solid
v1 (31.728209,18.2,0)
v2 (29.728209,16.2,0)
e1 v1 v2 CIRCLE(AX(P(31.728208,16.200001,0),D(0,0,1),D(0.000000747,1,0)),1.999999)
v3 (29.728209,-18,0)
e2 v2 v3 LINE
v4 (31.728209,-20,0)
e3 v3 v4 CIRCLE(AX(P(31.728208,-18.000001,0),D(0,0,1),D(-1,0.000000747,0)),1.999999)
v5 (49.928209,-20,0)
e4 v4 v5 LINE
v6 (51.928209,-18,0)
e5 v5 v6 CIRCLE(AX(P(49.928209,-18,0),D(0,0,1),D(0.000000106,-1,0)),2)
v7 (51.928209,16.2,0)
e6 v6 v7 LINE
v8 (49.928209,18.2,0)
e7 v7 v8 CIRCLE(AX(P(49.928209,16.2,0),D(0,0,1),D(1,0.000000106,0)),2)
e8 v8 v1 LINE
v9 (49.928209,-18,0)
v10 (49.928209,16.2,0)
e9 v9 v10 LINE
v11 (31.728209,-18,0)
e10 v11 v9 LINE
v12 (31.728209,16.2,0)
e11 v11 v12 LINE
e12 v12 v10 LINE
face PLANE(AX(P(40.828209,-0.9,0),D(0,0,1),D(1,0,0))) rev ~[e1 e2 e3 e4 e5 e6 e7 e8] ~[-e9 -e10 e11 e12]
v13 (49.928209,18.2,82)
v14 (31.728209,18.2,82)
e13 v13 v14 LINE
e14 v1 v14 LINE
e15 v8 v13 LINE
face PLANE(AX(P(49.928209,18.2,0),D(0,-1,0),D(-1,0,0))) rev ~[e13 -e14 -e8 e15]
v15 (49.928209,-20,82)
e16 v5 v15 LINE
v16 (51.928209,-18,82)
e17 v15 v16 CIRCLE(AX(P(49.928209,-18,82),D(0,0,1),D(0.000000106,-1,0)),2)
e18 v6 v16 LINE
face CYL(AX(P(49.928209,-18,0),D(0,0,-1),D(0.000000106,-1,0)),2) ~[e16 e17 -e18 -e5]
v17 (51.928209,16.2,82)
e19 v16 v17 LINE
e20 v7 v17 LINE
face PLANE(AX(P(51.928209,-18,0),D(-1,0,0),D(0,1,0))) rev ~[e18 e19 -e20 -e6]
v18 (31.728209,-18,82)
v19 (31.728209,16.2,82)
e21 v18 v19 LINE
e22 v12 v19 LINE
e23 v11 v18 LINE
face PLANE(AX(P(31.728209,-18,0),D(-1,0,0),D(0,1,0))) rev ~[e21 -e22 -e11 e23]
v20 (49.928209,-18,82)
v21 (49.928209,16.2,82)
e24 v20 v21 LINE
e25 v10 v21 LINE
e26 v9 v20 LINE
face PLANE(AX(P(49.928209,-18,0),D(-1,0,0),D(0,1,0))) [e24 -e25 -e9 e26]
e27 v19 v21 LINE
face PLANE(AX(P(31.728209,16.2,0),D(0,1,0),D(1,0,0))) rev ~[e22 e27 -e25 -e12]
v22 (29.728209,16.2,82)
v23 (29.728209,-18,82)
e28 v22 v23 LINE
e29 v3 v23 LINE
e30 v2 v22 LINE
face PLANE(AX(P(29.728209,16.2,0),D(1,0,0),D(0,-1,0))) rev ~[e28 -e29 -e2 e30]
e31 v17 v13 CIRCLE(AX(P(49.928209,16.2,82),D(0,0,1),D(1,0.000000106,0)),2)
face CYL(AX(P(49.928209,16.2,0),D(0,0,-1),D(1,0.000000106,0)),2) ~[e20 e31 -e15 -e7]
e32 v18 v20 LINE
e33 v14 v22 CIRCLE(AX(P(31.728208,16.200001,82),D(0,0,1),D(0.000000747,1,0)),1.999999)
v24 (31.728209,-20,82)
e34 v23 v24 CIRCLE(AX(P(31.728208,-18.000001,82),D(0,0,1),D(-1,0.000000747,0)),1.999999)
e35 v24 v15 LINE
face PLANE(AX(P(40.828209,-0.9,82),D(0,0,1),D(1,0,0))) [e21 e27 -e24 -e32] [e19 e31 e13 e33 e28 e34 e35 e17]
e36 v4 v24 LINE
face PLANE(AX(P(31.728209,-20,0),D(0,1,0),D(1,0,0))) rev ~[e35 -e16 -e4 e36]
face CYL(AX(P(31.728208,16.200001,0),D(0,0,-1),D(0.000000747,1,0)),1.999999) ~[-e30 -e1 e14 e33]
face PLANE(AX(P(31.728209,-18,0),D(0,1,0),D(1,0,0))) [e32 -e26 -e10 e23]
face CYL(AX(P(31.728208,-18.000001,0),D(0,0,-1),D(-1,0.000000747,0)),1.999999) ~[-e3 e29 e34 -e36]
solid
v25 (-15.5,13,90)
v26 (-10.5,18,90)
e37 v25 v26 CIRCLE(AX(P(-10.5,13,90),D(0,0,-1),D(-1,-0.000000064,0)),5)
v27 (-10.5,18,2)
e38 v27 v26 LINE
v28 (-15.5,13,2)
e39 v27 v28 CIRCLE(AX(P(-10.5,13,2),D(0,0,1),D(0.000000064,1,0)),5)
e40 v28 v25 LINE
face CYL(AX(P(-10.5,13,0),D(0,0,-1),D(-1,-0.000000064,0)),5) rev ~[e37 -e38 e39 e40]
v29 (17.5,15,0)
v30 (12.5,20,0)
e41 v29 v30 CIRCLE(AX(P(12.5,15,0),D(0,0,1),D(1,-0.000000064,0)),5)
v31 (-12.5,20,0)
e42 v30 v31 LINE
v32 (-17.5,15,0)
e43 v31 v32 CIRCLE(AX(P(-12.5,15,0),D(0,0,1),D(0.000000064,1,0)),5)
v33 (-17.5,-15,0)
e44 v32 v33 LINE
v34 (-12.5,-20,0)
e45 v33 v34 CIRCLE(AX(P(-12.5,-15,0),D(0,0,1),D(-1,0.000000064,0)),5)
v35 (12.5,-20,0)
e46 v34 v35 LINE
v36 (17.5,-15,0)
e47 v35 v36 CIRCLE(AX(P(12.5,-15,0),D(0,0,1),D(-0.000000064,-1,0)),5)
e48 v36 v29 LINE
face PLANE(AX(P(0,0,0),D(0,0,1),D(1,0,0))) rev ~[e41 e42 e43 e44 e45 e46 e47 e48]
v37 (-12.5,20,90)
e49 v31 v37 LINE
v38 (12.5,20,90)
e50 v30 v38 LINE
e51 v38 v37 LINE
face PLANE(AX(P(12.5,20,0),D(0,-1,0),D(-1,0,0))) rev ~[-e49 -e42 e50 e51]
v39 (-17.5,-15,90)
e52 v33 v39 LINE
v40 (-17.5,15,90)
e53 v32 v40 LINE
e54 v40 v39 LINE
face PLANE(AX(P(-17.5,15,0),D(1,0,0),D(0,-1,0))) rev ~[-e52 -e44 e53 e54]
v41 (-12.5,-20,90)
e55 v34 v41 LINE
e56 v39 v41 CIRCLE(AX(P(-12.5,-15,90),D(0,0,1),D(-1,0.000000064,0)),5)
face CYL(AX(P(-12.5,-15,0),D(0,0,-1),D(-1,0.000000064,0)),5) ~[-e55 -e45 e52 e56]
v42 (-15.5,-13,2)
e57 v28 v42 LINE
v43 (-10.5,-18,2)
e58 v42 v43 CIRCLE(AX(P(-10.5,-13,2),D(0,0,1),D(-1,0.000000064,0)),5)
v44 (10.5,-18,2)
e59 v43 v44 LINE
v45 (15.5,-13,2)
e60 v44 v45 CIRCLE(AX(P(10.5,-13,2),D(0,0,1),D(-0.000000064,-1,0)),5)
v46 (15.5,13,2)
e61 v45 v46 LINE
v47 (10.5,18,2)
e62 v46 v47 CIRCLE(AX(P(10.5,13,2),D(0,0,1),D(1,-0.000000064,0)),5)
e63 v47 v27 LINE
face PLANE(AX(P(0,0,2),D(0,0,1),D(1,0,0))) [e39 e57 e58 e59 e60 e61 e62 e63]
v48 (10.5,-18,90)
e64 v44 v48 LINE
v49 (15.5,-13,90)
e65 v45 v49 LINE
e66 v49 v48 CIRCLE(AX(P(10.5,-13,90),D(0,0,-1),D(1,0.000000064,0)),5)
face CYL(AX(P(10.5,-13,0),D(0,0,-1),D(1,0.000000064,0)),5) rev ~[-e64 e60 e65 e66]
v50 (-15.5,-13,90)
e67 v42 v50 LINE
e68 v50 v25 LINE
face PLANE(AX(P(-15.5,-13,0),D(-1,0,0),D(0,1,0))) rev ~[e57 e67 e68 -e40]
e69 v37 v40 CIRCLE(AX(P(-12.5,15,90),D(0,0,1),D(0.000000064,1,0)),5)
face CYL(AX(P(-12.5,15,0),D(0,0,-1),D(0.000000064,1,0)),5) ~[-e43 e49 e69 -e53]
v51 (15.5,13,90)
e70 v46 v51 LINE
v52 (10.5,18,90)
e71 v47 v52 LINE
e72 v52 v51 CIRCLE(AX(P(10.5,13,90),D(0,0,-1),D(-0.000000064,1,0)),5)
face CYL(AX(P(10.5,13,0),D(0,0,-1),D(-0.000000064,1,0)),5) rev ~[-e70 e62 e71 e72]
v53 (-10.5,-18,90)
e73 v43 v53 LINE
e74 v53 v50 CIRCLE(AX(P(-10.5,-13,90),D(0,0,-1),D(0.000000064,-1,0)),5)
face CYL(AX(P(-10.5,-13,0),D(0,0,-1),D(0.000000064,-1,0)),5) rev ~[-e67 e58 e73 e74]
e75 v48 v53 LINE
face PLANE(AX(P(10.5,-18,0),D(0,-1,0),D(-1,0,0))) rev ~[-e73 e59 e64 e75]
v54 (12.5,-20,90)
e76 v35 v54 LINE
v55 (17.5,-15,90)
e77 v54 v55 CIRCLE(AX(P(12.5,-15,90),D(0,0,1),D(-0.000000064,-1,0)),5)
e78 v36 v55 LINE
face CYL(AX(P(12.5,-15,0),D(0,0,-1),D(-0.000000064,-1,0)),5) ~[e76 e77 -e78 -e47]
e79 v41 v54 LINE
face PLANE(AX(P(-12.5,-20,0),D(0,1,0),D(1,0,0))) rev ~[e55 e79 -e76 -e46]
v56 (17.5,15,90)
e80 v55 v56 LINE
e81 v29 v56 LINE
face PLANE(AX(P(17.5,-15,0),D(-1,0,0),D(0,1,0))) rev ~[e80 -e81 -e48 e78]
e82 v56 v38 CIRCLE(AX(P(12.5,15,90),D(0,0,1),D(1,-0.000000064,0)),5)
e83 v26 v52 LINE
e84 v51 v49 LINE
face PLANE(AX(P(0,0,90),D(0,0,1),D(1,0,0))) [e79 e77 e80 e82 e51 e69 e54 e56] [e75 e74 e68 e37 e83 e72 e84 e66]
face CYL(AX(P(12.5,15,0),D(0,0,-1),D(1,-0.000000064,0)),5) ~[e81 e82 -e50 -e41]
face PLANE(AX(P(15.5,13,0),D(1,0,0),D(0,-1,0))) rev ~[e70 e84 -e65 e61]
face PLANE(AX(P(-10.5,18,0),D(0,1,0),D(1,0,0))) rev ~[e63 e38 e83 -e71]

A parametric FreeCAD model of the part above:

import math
import FreeCAD as App
import Part
import Sketcher

doc = App.newDocument("Part")
params = doc.addObject("Spreadsheet::Sheet", "Params")
for row, (alias, value) in enumerate([
    ("sketch1_radius", "5 mm"),
    ("sketch1_width", "25 mm"),
    ("sketch1_width2", "21 mm"),
    ("sketch1_height", "30 mm"),
    ("sketch1_height2", "26 mm"),
    ("pad1_length", "90 mm"),
    ("sketch2_radius", "5 mm"),
    ("sketch2_width", "21 mm"),
    ("sketch2_height", "26 mm"),
    ("pad2_length", "2 mm"),
    ("sketch3_radius", "1.999999 mm"),
    ("sketch3_width", "18.2 mm"),
    ("sketch3_height", "34.2 mm"),
    ("pad3_length", "82 mm"),
], start=1):
    params.set(f"A{row}", alias)
    params.set(f"B{row}", "=" + value)
    params.setAlias(f"B{row}", alias)

body = doc.addObject("PartDesign::Body", "Body")

# Sketch on XY plane
sketch1 = body.newObject("Sketcher::SketchObject", "Sketch")
sketch1.AttachmentSupport = (doc.getObject("XY_Plane"), [""])
sketch1.MapMode = "FlatFace"
sketch1.addGeometry(Part.ArcOfCircle(Part.Circle(App.Vector(12.5, 15, 0), App.Vector(0, 0, 1), 5), math.radians(0), math.radians(90)), False)
sketch1.addGeometry(Part.LineSegment(App.Vector(12.5, 20, 0), App.Vector(-12.5, 20, 0)), False)
sketch1.addGeometry(Part.ArcOfCircle(Part.Circle(App.Vector(-12.5, 15, 0), App.Vector(0, 0, 1), 5), math.radians(90), math.radians(180)), False)
sketch1.addGeometry(Part.LineSegment(App.Vector(-17.5, 15, 0), App.Vector(-17.5, -15, 0)), False)
sketch1.addGeometry(Part.ArcOfCircle(Part.Circle(App.Vector(-12.5, -15, 0), App.Vector(0, 0, 1), 5), math.radians(180), math.radians(270)), False)
sketch1.addGeometry(Part.LineSegment(App.Vector(-12.5, -20, 0), App.Vector(12.5, -20, 0)), False)
sketch1.addGeometry(Part.ArcOfCircle(Part.Circle(App.Vector(12.5, -15, 0), App.Vector(0, 0, 1), 5), math.radians(-90), math.radians(0)), False)
sketch1.addGeometry(Part.LineSegment(App.Vector(17.5, -15, 0), App.Vector(17.5, 15, 0)), False)
sketch1.addGeometry(Part.ArcOfCircle(Part.Circle(App.Vector(-10.5, -13, 0), App.Vector(0, 0, 1), 5), math.radians(180), math.radians(270)), False)
sketch1.addGeometry(Part.LineSegment(App.Vector(-15.5, -13, 0), App.Vector(-15.5, 13, 0)), False)
sketch1.addGeometry(Part.ArcOfCircle(Part.Circle(App.Vector(-10.5, 13, 0), App.Vector(0, 0, 1), 5), math.radians(90), math.radians(180)), False)
sketch1.addGeometry(Part.LineSegment(App.Vector(-10.5, 18, 0), App.Vector(10.5, 18, 0)), False)
sketch1.addGeometry(Part.ArcOfCircle(Part.Circle(App.Vector(10.5, 13, 0), App.Vector(0, 0, 1), 5), math.radians(0), math.radians(90)), False)
sketch1.addGeometry(Part.LineSegment(App.Vector(15.5, 13, 0), App.Vector(15.5, -13, 0)), False)
sketch1.addGeometry(Part.ArcOfCircle(Part.Circle(App.Vector(10.5, -13, 0), App.Vector(0, 0, 1), 5), math.radians(-90), math.radians(0)), False)
sketch1.addGeometry(Part.LineSegment(App.Vector(10.5, -18, 0), App.Vector(-10.5, -18, 0)), False)
sketch1.addConstraint(Sketcher.Constraint("Tangent", 0, 2, 1, 1))
sketch1.addConstraint(Sketcher.Constraint("Tangent", 1, 2, 2, 1))
sketch1.addConstraint(Sketcher.Constraint("Tangent", 2, 2, 3, 1))
sketch1.addConstraint(Sketcher.Constraint("Tangent", 3, 2, 4, 1))
sketch1.addConstraint(Sketcher.Constraint("Tangent", 4, 2, 5, 1))
sketch1.addConstraint(Sketcher.Constraint("Tangent", 5, 2, 6, 1))
sketch1.addConstraint(Sketcher.Constraint("Tangent", 6, 2, 7, 1))
sketch1.addConstraint(Sketcher.Constraint("Tangent", 7, 2, 0, 1))
sketch1.addConstraint(Sketcher.Constraint("Tangent", 8, 1, 9, 1))
sketch1.addConstraint(Sketcher.Constraint("Tangent", 9, 2, 10, 2))
sketch1.addConstraint(Sketcher.Constraint("Tangent", 10, 1, 11, 1))
sketch1.addConstraint(Sketcher.Constraint("Tangent", 11, 2, 12, 2))
sketch1.addConstraint(Sketcher.Constraint("Tangent", 12, 1, 13, 1))
sketch1.addConstraint(Sketcher.Constraint("Tangent", 13, 2, 14, 2))
sketch1.addConstraint(Sketcher.Constraint("Tangent", 14, 1, 15, 1))
sketch1.addConstraint(Sketcher.Constraint("Tangent", 15, 2, 8, 2))
sketch1.addConstraint(Sketcher.Constraint("Horizontal", 1))
sketch1.addConstraint(Sketcher.Constraint("Vertical", 3))
sketch1.addConstraint(Sketcher.Constraint("Horizontal", 5))
sketch1.addConstraint(Sketcher.Constraint("Vertical", 7))
sketch1.addConstraint(Sketcher.Constraint("Vertical", 9))
sketch1.addConstraint(Sketcher.Constraint("Horizontal", 11))
sketch1.addConstraint(Sketcher.Constraint("Vertical", 13))
sketch1.addConstraint(Sketcher.Constraint("Horizontal", 15))
sketch1.addConstraint(Sketcher.Constraint("Equal", 0, 2))
sketch1.addConstraint(Sketcher.Constraint("Equal", 2, 4))
sketch1.addConstraint(Sketcher.Constraint("Equal", 4, 6))
sketch1.addConstraint(Sketcher.Constraint("Equal", 6, 8))
sketch1.addConstraint(Sketcher.Constraint("Equal", 8, 10))
sketch1.addConstraint(Sketcher.Constraint("Equal", 10, 12))
sketch1.addConstraint(Sketcher.Constraint("Equal", 12, 14))
sketch1.addConstraint(Sketcher.Constraint("Symmetric", 0, 3, 4, 3, -1, 1))
sketch1.addConstraint(Sketcher.Constraint("Symmetric", 8, 3, 12, 3, -1, 1))
sketch1.addConstraint(Sketcher.Constraint("Radius", 0, 5.0))
sketch1.addConstraint(Sketcher.Constraint("DistanceX", 1, 2, 1, 1, 25.0))
sketch1.addConstraint(Sketcher.Constraint("DistanceX", 11, 1, 11, 2, 21.0))
sketch1.addConstraint(Sketcher.Constraint("DistanceY", 3, 2, 3, 1, 30.0))
sketch1.addConstraint(Sketcher.Constraint("DistanceY", 9, 1, 9, 2, 26.0))
sketch1.setExpression("Constraints[33]", "Params.sketch1_radius")
sketch1.setExpression("Constraints[34]", "Params.sketch1_width")
sketch1.setExpression("Constraints[35]", "Params.sketch1_width2")
sketch1.setExpression("Constraints[36]", "Params.sketch1_height")
sketch1.setExpression("Constraints[37]", "Params.sketch1_height2")
pad1 = body.newObject("PartDesign::Pad", "Pad")
pad1.Profile = sketch1
pad1.setExpression("Length", "Params.pad1_length")

# Sketch on XY plane
sketch2 = body.newObject("Sketcher::SketchObject", "Sketch001")
sketch2.AttachmentSupport = (doc.getObject("XY_Plane"), [""])
sketch2.MapMode = "FlatFace"
sketch2.addGeometry(Part.ArcOfCircle(Part.Circle(App.Vector(-10.5, 13, 0), App.Vector(0, 0, 1), 5), math.radians(90), math.radians(180)), False)
sketch2.addGeometry(Part.LineSegment(App.Vector(-15.5, 13, 0), App.Vector(-15.5, -13, 0)), False)
sketch2.addGeometry(Part.ArcOfCircle(Part.Circle(App.Vector(-10.5, -13, 0), App.Vector(0, 0, 1), 5), math.radians(180), math.radians(270)), False)
sketch2.addGeometry(Part.LineSegment(App.Vector(-10.5, -18, 0), App.Vector(10.5, -18, 0)), False)
sketch2.addGeometry(Part.ArcOfCircle(Part.Circle(App.Vector(10.5, -13, 0), App.Vector(0, 0, 1), 5), math.radians(-90), math.radians(0)), False)
sketch2.addGeometry(Part.LineSegment(App.Vector(15.5, -13, 0), App.Vector(15.5, 13, 0)), False)
sketch2.addGeometry(Part.ArcOfCircle(Part.Circle(App.Vector(10.5, 13, 0), App.Vector(0, 0, 1), 5), math.radians(0), math.radians(90)), False)
sketch2.addGeometry(Part.LineSegment(App.Vector(10.5, 18, 0), App.Vector(-10.5, 18, 0)), False)
sketch2.addConstraint(Sketcher.Constraint("Tangent", 0, 2, 1, 1))
sketch2.addConstraint(Sketcher.Constraint("Tangent", 1, 2, 2, 1))
sketch2.addConstraint(Sketcher.Constraint("Tangent", 2, 2, 3, 1))
sketch2.addConstraint(Sketcher.Constraint("Tangent", 3, 2, 4, 1))
sketch2.addConstraint(Sketcher.Constraint("Tangent", 4, 2, 5, 1))
sketch2.addConstraint(Sketcher.Constraint("Tangent", 5, 2, 6, 1))
sketch2.addConstraint(Sketcher.Constraint("Tangent", 6, 2, 7, 1))
sketch2.addConstraint(Sketcher.Constraint("Tangent", 7, 2, 0, 1))
sketch2.addConstraint(Sketcher.Constraint("Vertical", 1))
sketch2.addConstraint(Sketcher.Constraint("Horizontal", 3))
sketch2.addConstraint(Sketcher.Constraint("Vertical", 5))
sketch2.addConstraint(Sketcher.Constraint("Horizontal", 7))
sketch2.addConstraint(Sketcher.Constraint("Equal", 0, 2))
sketch2.addConstraint(Sketcher.Constraint("Equal", 2, 4))
sketch2.addConstraint(Sketcher.Constraint("Equal", 4, 6))
sketch2.addConstraint(Sketcher.Constraint("Symmetric", 0, 3, 4, 3, -1, 1))
sketch2.addConstraint(Sketcher.Constraint("Radius", 0, 5.0))
sketch2.addConstraint(Sketcher.Constraint("DistanceX", 3, 1, 3, 2, 21.0))
sketch2.addConstraint(Sketcher.Constraint("DistanceY", 1, 2, 1, 1, 26.0))
sketch2.setExpression("Constraints[16]", "Params.sketch2_radius")
sketch2.setExpression("Constraints[17]", "Params.sketch2_width")
sketch2.setExpression("Constraints[18]", "Params.sketch2_height")
pad2 = body.newObject("PartDesign::Pad", "Pad001")
pad2.Profile = sketch2
pad2.setExpression("Length", "Params.pad2_length")
body2 = doc.addObject("PartDesign::Body", "Body001")

# Sketch on XY plane
sketch3 = body2.newObject("Sketcher::SketchObject", "Sketch002")
sketch3.AttachmentSupport = (doc.getObject("XY_Plane001"), [""])
sketch3.MapMode = "FlatFace"
sketch3.addGeometry(Part.LineSegment(App.Vector(49.9, 18.2, 0), App.Vector(31.7, 18.2, 0)), False)
sketch3.addGeometry(Part.ArcOfCircle(Part.Circle(App.Vector(31.7, 16.2, 0), App.Vector(0, 0, 1), 2), math.radians(90), math.radians(180)), False)
sketch3.addGeometry(Part.LineSegment(App.Vector(29.7, 16.2, 0), App.Vector(29.7, -18, 0)), False)
sketch3.addGeometry(Part.ArcOfCircle(Part.Circle(App.Vector(31.7, -18, 0), App.Vector(0, 0, 1), 2), math.radians(180), math.radians(270)), False)
sketch3.addGeometry(Part.LineSegment(App.Vector(31.7, -20, 0), App.Vector(49.9, -20, 0)), False)
sketch3.addGeometry(Part.ArcOfCircle(Part.Circle(App.Vector(49.9, -18, 0), App.Vector(0, 0, 1), 2), math.radians(-90), math.radians(0)), False)
sketch3.addGeometry(Part.LineSegment(App.Vector(51.9, -18, 0), App.Vector(51.9, 16.2, 0)), False)
sketch3.addGeometry(Part.ArcOfCircle(Part.Circle(App.Vector(49.9, 16.2, 0), App.Vector(0, 0, 1), 2), math.radians(0), math.radians(90)), False)
sketch3.addGeometry(Part.LineSegment(App.Vector(49.9, -18, 0), App.Vector(31.7, -18, 0)), False)
sketch3.addGeometry(Part.LineSegment(App.Vector(31.7, -18, 0), App.Vector(31.7, 16.2, 0)), False)
sketch3.addGeometry(Part.LineSegment(App.Vector(31.7, 16.2, 0), App.Vector(49.9, 16.2, 0)), False)
sketch3.addGeometry(Part.LineSegment(App.Vector(49.9, 16.2, 0), App.Vector(49.9, -18, 0)), False)
sketch3.addConstraint(Sketcher.Constraint("Tangent", 0, 2, 1, 1))
sketch3.addConstraint(Sketcher.Constraint("Tangent", 1, 2, 2, 1))
sketch3.addConstraint(Sketcher.Constraint("Tangent", 2, 2, 3, 1))
sketch3.addConstraint(Sketcher.Constraint("Tangent", 3, 2, 4, 1))
sketch3.addConstraint(Sketcher.Constraint("Tangent", 4, 2, 5, 1))
sketch3.addConstraint(Sketcher.Constraint("Tangent", 5, 2, 6, 1))
sketch3.addConstraint(Sketcher.Constraint("Tangent", 6, 2, 7, 1))
sketch3.addConstraint(Sketcher.Constraint("Tangent", 7, 2, 0, 1))
sketch3.addConstraint(Sketcher.Constraint("Coincident", 8, 2, 9, 1))
sketch3.addConstraint(Sketcher.Constraint("Coincident", 9, 2, 10, 1))
sketch3.addConstraint(Sketcher.Constraint("Coincident", 10, 2, 11, 1))
sketch3.addConstraint(Sketcher.Constraint("Coincident", 11, 2, 8, 1))
sketch3.addConstraint(Sketcher.Constraint("Horizontal", 0))
sketch3.addConstraint(Sketcher.Constraint("Vertical", 2))
sketch3.addConstraint(Sketcher.Constraint("Horizontal", 4))
sketch3.addConstraint(Sketcher.Constraint("Vertical", 6))
sketch3.addConstraint(Sketcher.Constraint("Horizontal", 8))
sketch3.addConstraint(Sketcher.Constraint("Vertical", 9))
sketch3.addConstraint(Sketcher.Constraint("Horizontal", 10))
sketch3.addConstraint(Sketcher.Constraint("Vertical", 11))
sketch3.addConstraint(Sketcher.Constraint("Coincident", 8, 2, 3, 3))
sketch3.addConstraint(Sketcher.Constraint("Coincident", 9, 2, 1, 3))
sketch3.addConstraint(Sketcher.Constraint("Coincident", 10, 2, 7, 3))
sketch3.addConstraint(Sketcher.Constraint("Equal", 3, 5))
sketch3.addConstraint(Sketcher.Constraint("Radius", 1, 1.999999))
sketch3.addConstraint(Sketcher.Constraint("DistanceX", 0, 2, 0, 1, 18.2))
sketch3.addConstraint(Sketcher.Constraint("DistanceY", 2, 2, 2, 1, 34.2))
sketch3.addConstraint(Sketcher.Constraint("DistanceY", 3, 3, -1, 1, 18.000001))
sketch3.addConstraint(Sketcher.Constraint("DistanceX", -1, 1, 5, 3, 49.928209))
sketch3.setExpression("Constraints[24]", "Params.sketch3_radius")
sketch3.setExpression("Constraints[25]", "Params.sketch3_width")
sketch3.setExpression("Constraints[26]", "Params.sketch3_height")
pad3 = body2.newObject("PartDesign::Pad", "Pad002")
pad3.Profile = sketch3
pad3.setExpression("Length", "Params.pad3_length")

doc.recompute()
